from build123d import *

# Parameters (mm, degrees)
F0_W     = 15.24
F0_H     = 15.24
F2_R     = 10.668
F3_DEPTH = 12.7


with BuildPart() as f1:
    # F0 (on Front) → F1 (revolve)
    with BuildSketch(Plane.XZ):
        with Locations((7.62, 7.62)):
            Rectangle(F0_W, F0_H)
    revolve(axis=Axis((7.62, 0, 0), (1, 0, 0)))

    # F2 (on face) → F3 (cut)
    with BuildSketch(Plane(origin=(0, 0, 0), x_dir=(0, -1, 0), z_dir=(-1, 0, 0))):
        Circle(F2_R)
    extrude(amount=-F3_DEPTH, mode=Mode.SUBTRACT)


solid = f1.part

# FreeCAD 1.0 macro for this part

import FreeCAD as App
import Part
import Sketcher
Q = App.Units.Quantity

doc = App.newDocument("Part")
body = doc.addObject("PartDesign::Body", "Body")

# Sketch on XZ plane
sketch1 = doc.addObject("Sketcher::SketchObject", "Sketch")
body.addObject(sketch1)
sketch1.AttachmentSupport = (doc.XZ_Plane, [""])
sketch1.MapMode = "FlatFace"
sketch1.addGeometry([
    Part.LineSegment(App.Vector(0, 15.24, 0), App.Vector(0, 0, 0)),
    Part.LineSegment(App.Vector(0, 0, 0), App.Vector(15.24, 0, 0)),
    Part.LineSegment(App.Vector(15.24, 0, 0), App.Vector(15.24, 15.24, 0)),
    Part.LineSegment(App.Vector(15.24, 15.24, 0), App.Vector(0, 15.24, 0)),
], False)
sketch1.addConstraint([
    Sketcher.Constraint("Coincident", 0, 2, 1, 1),
    Sketcher.Constraint("Coincident", 1, 2, 2, 1),
    Sketcher.Constraint("Coincident", 2, 2, 3, 1),
    Sketcher.Constraint("Coincident", 3, 2, 0, 1),
    Sketcher.Constraint("Vertical", 0),
    Sketcher.Constraint("Horizontal", 1),
    Sketcher.Constraint("Vertical", 2),
    Sketcher.Constraint("Horizontal", 3),
    Sketcher.Constraint("Coincident", 0, 2, -1, 1),
    Sketcher.Constraint("Equal", 3, 0),
    Sketcher.Constraint("DistanceX", 1, 1, 1, 2, Q("0.6 in")),
])
revolution = doc.addObject("PartDesign::Revolution", "Revolution")
body.addObject(revolution)
revolution.Profile = sketch1
revolution.ReferenceAxis = (sketch1, ["H_Axis"])
revolution.Angle = 360

# Sketch on YZ plane
sketch2 = doc.addObject("Sketcher::SketchObject", "Sketch001")
body.addObject(sketch2)
sketch2.AttachmentSupport = (doc.YZ_Plane, [""])
sketch2.MapMode = "FlatFace"
sketch2.addGeometry(Part.Circle(App.Vector(0, 0, 0), App.Vector(0, 0, 1), 10.668), False)
sketch2.addConstraint([
    Sketcher.Constraint("Coincident", 0, 3, -1, 1),
    Sketcher.Constraint("Diameter", 0, Q("0.84 in")),
])
pocket1 = doc.addObject("PartDesign::Pocket", "Pocket")
body.addObject(pocket1)
pocket1.Profile = sketch2
pocket1.Length = Q("0.5 in")
pocket1.Reversed = True

doc.recompute()
